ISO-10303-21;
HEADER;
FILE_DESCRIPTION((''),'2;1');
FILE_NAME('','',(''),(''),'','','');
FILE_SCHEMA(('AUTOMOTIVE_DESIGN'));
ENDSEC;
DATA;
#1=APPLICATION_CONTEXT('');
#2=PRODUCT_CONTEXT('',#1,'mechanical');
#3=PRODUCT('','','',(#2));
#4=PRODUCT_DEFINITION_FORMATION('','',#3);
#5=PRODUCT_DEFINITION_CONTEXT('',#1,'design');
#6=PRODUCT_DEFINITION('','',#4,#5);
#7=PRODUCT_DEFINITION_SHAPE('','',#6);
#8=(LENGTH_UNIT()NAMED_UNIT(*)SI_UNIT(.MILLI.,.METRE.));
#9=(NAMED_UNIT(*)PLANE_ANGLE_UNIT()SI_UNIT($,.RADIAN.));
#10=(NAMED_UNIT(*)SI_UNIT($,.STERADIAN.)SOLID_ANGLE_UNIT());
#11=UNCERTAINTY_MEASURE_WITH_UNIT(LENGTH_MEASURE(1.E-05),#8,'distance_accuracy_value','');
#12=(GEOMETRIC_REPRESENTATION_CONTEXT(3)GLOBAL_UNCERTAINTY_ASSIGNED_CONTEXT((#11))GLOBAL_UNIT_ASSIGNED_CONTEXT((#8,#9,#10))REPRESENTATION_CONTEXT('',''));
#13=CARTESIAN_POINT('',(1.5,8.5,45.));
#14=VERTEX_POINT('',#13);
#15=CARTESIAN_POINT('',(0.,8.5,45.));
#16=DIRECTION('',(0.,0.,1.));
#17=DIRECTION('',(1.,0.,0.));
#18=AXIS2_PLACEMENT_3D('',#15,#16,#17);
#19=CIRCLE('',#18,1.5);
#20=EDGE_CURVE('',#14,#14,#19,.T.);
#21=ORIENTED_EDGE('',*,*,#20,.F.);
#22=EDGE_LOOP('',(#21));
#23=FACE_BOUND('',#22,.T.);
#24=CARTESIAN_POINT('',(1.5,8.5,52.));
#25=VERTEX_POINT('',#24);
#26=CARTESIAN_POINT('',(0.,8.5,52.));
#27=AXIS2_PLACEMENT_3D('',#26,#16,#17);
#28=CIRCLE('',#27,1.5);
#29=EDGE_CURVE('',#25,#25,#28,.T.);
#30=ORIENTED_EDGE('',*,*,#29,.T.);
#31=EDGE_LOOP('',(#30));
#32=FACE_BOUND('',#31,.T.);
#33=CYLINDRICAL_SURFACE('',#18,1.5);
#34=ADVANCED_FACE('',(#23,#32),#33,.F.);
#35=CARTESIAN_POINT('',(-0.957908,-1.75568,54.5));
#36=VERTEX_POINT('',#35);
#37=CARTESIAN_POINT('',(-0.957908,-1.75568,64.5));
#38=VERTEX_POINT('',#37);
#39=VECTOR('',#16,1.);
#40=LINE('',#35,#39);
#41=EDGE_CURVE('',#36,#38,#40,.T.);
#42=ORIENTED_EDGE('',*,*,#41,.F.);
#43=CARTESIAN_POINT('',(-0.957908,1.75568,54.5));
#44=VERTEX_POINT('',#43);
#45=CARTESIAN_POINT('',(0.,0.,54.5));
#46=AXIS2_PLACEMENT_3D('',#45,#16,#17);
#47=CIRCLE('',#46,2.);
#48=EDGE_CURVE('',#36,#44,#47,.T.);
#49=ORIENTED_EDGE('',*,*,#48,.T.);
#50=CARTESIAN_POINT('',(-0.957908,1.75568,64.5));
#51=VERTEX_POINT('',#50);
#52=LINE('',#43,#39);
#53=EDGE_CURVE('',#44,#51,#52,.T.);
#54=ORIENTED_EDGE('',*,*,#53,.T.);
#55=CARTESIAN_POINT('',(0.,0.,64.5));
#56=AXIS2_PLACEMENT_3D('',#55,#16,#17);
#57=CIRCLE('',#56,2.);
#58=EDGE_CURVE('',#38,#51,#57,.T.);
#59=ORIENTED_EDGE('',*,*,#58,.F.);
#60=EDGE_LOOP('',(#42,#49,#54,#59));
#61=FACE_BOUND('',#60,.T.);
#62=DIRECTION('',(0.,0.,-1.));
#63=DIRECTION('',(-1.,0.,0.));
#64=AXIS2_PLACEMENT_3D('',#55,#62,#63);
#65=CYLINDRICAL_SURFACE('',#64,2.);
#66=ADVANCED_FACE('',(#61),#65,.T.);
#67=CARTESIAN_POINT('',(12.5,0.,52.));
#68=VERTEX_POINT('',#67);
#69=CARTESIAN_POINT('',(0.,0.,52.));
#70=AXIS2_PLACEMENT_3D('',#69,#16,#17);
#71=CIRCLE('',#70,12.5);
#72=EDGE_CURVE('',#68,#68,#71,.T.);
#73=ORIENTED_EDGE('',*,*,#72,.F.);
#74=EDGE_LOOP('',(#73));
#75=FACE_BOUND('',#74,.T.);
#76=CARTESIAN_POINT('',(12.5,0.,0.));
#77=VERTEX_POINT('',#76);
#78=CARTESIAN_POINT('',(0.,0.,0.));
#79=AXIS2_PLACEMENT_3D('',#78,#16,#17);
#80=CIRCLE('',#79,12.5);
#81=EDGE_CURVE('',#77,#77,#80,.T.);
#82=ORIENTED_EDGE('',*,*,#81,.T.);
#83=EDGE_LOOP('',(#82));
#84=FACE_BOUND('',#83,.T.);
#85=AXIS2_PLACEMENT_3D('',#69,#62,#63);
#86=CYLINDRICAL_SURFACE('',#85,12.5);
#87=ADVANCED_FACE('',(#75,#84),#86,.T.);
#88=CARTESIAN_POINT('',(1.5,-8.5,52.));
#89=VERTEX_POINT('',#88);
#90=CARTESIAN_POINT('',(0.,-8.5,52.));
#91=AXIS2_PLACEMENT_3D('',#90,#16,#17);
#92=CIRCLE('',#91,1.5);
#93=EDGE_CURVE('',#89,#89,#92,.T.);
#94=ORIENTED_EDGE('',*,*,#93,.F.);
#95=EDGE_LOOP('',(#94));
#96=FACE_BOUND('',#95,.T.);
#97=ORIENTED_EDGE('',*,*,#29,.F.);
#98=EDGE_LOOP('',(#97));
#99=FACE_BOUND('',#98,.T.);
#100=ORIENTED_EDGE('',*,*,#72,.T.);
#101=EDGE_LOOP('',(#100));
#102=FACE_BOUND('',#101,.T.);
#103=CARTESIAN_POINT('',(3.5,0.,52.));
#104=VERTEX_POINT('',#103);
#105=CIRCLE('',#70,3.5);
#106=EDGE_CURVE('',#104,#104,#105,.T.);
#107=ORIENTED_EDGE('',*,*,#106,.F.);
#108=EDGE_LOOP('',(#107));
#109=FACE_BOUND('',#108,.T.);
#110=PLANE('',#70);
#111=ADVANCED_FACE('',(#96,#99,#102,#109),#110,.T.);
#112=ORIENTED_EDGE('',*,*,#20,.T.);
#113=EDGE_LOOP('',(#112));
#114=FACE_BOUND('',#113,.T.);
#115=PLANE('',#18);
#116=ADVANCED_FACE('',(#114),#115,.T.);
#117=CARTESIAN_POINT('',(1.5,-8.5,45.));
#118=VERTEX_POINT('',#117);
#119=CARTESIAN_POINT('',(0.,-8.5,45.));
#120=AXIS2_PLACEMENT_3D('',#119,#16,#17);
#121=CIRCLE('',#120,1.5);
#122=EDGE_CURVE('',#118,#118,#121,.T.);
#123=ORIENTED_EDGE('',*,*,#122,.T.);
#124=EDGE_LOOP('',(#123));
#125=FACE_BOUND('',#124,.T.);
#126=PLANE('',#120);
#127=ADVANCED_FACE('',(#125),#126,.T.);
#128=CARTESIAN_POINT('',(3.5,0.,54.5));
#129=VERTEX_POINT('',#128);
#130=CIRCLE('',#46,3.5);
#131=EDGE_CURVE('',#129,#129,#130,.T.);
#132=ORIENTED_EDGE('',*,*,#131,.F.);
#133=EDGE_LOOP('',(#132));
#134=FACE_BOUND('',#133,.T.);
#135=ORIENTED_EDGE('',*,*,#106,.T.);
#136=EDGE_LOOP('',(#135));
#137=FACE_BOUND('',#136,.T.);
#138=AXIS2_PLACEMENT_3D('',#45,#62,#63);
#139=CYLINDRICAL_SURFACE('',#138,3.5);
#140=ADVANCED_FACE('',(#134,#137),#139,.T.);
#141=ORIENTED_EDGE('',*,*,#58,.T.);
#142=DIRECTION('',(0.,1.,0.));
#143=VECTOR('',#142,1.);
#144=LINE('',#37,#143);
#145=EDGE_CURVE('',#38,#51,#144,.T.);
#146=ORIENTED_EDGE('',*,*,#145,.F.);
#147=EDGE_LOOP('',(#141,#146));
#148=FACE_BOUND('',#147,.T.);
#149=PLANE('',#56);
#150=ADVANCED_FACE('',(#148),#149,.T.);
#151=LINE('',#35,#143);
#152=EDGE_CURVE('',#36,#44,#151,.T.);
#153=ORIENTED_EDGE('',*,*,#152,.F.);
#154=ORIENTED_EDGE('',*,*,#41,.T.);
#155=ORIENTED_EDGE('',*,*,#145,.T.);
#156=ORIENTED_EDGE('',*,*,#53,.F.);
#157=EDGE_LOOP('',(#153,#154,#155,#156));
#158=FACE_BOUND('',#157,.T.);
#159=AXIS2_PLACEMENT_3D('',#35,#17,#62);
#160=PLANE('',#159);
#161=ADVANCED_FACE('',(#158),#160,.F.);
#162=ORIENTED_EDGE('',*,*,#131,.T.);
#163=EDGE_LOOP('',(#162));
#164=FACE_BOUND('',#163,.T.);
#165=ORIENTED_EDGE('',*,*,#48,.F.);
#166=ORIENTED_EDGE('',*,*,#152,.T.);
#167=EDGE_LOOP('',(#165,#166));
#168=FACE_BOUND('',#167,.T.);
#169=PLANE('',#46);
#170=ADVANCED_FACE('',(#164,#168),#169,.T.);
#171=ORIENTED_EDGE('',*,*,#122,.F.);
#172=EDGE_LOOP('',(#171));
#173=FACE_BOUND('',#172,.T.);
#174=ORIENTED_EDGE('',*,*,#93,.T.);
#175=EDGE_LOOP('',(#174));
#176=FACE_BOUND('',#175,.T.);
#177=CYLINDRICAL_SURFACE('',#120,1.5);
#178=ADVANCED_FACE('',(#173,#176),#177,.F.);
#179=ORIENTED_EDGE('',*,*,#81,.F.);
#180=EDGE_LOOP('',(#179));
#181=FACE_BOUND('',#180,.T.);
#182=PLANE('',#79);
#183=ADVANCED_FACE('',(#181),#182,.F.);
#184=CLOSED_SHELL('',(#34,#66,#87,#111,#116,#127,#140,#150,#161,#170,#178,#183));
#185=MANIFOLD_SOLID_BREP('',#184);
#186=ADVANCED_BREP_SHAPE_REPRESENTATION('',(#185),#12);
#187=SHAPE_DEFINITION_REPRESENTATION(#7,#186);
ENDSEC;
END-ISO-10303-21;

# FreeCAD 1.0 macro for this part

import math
import FreeCAD as App
import Part
import Sketcher

V = App.Vector
Q = App.Units.Quantity

doc = App.newDocument("Part")
params = doc.addObject("Spreadsheet::Sheet", "Params")
for row, (alias, value) in enumerate([
    ("sketch1_diameter", "25 mm"),
    ("pad1_length", "52 mm"),
    ("sketch2_diameter", "7 mm"),
    ("pad2_length", "2.5 mm"),
    ("sketch3_diameter", "4 mm"),
    ("pad3_length", "10 mm"),
    ("sketch4_radius", "2 mm"),
    ("pocket1_length", "10 mm"),
    ("sketch5_diameter", "3 mm"),
    ("pocket2_length", "7 mm"),
], start=1):
    params.set(f"A{row}", alias)
    params.set(f"B{row}", "=" + value)
    params.setAlias(f"B{row}", alias)

body = doc.addObject("PartDesign::Body", "Body")

# Sketch on XY plane
sketch1 = body.newObject("Sketcher::SketchObject", "Sketch")
sketch1.AttachmentSupport = (doc.getObject("XY_Plane"), [""])
sketch1.MapMode = "FlatFace"
sketch1.addGeometry(Part.Circle(V(0, 0, 0), V(0, 0, 1), 12), False)
sketch1.addConstraint(Sketcher.Constraint("Coincident", 0, 3, -1, 1))
sketch1.addConstraint(Sketcher.Constraint("Diameter", 0, Q("25 mm")))
sketch1.setExpression("Constraints[1]", "Params.sketch1_diameter")
pad1 = body.newObject("PartDesign::Pad", "Pad")
pad1.Profile = sketch1
pad1.setExpression("Length", "Params.pad1_length")

# Sketch on XY plane
sketch2 = body.newObject("Sketcher::SketchObject", "Sketch001")
sketch2.AttachmentSupport = (doc.getObject("XY_Plane"), [""])
sketch2.MapMode = "FlatFace"
sketch2.AttachmentOffset = App.Placement(V(0, 0, 52), App.Rotation())
sketch2.addGeometry(Part.Circle(V(0, 0, 0), V(0, 0, 1), 3.5), False)
sketch2.addConstraint(Sketcher.Constraint("Coincident", 0, 3, -1, 1))
sketch2.addConstraint(Sketcher.Constraint("Diameter", 0, Q("7 mm")))
sketch2.setExpression("Constraints[1]", "Params.sketch2_diameter")
pad2 = body.newObject("PartDesign::Pad", "Pad001")
pad2.Profile = sketch2
pad2.setExpression("Length", "Params.pad2_length")

# Sketch on XY plane
sketch3 = body.newObject("Sketcher::SketchObject", "Sketch002")
sketch3.AttachmentSupport = (doc.getObject("XY_Plane"), [""])
sketch3.MapMode = "FlatFace"
sketch3.AttachmentOffset = App.Placement(V(0, 0, 54.5), App.Rotation())
sketch3.addGeometry(Part.Circle(V(0, 0, 0), V(0, 0, 1), 2), False)
sketch3.addConstraint(Sketcher.Constraint("Coincident", 0, 3, -1, 1))
sketch3.addConstraint(Sketcher.Constraint("Diameter", 0, Q("4 mm")))
sketch3.setExpression("Constraints[1]", "Params.sketch3_diameter")
pad3 = body.newObject("PartDesign::Pad", "Pad002")
pad3.Profile = sketch3
pad3.setExpression("Length", "Params.pad3_length")

# Sketch on XY plane
sketch4 = body.newObject("Sketcher::SketchObject", "Sketch003")
sketch4.AttachmentSupport = (doc.getObject("XY_Plane"), [""])
sketch4.MapMode = "FlatFace"
sketch4.AttachmentOffset = App.Placement(V(0, 0, 64.5), App.Rotation())
sketch4.addGeometry(Part.LineSegment(V(-1, -1.8, 0), V(-1, 1.8, 0)), False)
sketch4.addGeometry(Part.ArcOfCircle(Part.Circle(V(0, 0, 0), V(0, 0, 1), 2), math.radians(119), math.radians(241)), False)
sketch4.addConstraint(Sketcher.Constraint("Coincident", 0, 1, 1, 2))
sketch4.addConstraint(Sketcher.Constraint("Coincident", 1, 1, 0, 2))
sketch4.addConstraint(Sketcher.Constraint("Vertical", 0))
sketch4.addConstraint(Sketcher.Constraint("Coincident", 1, 3, -1, 1))
sketch4.addConstraint(Sketcher.Constraint("Radius", 1, Q("2 mm")))
sketch4.addConstraint(Sketcher.Constraint("DistanceY", 0, 1, 0, 2, Q("3.51136 mm")))
sketch4.setExpression("Constraints[4]", "Params.sketch4_radius")
pocket1 = body.newObject("PartDesign::Pocket", "Pocket")
pocket1.Profile = sketch4
pocket1.setExpression("Length", "Params.pocket1_length")

# Sketch on XY plane
sketch5 = body.newObject("Sketcher::SketchObject", "Sketch004")
sketch5.AttachmentSupport = (doc.getObject("XY_Plane"), [""])
sketch5.MapMode = "FlatFace"
sketch5.AttachmentOffset = App.Placement(V(0, 0, 52), App.Rotation())
sketch5.addGeometry(Part.Circle(V(0, 8.5, 0), V(0, 0, 1), 1.5), False)
sketch5.addGeometry(Part.Circle(V(0, -8.5, 0), V(0, 0, 1), 1.5), False)
sketch5.addConstraint(Sketcher.Constraint("Equal", 0, 1))
sketch5.addConstraint(Sketcher.Constraint("Symmetric", 0, 3, 1, 3, -1, 1))
sketch5.addConstraint(Sketcher.Constraint("PointOnObject", 0, 3, -2))
sketch5.addConstraint(Sketcher.Constraint("Diameter", 0, Q("3 mm")))
sketch5.addConstraint(Sketcher.Constraint("DistanceY", 1, 3, 0, 3, Q("17 mm")))
sketch5.setExpression("Constraints[3]", "Params.sketch5_diameter")
pocket2 = body.newObject("PartDesign::Pocket", "Pocket001")
pocket2.Profile = sketch5
pocket2.setExpression("Length", "Params.pocket2_length")

doc.recompute()
